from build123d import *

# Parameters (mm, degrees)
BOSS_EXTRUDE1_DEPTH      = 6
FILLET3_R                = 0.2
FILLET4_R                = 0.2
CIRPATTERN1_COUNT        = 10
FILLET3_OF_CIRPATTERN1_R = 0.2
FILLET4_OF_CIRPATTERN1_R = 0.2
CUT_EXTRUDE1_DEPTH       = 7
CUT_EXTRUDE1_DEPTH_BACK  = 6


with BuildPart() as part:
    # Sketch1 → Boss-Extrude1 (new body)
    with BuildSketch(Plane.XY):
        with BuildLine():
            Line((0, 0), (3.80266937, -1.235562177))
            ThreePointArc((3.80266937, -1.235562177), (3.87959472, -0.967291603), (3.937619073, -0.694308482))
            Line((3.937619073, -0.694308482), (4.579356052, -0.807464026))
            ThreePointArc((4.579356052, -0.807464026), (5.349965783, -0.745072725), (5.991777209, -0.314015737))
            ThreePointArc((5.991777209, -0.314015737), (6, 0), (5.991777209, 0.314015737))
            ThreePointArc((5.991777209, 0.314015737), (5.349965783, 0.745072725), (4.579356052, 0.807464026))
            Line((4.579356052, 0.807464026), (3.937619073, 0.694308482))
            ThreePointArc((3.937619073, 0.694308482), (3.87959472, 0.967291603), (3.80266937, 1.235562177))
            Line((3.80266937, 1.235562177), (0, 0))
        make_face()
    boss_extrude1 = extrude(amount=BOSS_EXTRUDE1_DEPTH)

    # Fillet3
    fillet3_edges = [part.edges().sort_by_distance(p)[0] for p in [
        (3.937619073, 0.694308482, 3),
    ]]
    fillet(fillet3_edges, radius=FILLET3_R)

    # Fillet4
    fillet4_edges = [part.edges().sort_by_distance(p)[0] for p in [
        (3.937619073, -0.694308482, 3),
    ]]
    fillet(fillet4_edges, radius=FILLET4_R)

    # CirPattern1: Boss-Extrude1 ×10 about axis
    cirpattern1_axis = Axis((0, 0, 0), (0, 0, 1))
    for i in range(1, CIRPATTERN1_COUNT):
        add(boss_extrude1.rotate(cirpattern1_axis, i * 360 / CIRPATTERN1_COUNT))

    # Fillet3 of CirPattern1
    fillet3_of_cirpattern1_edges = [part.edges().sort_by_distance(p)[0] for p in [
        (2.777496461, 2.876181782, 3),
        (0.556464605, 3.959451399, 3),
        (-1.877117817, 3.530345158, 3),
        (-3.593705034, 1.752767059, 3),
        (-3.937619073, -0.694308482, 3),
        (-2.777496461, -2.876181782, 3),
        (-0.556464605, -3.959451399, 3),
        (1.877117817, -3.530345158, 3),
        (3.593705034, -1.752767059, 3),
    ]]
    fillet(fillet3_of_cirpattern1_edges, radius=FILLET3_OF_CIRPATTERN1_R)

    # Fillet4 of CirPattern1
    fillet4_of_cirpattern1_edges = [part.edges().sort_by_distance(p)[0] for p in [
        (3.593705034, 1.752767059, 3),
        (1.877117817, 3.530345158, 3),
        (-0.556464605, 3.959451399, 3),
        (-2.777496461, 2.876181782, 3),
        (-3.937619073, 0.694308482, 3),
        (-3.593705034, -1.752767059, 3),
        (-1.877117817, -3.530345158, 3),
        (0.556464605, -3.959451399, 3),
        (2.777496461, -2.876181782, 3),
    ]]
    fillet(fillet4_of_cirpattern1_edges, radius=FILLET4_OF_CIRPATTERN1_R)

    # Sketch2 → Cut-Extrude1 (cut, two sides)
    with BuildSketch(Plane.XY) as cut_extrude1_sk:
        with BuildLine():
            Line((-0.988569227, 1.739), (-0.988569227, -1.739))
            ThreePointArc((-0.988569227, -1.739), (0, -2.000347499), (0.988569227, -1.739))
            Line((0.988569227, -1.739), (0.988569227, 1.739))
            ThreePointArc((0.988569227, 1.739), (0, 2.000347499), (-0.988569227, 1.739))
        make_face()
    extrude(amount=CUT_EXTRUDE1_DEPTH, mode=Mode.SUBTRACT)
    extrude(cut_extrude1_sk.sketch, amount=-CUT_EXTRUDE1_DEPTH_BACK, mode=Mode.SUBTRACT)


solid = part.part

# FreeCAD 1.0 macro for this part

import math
import FreeCAD as App
import Part
import Sketcher
Q = App.Units.Quantity


def edges_at(feature, points):
    """Names of the edges that pass closest to the given points."""
    edges = feature.Shape.Edges
    near = lambda p: min(range(len(edges)), key=lambda i: edges[i].distToShape(Part.Vertex(*p))[0])
    return sorted({f"Edge{near(p) + 1}" for p in points})

doc = App.newDocument("Part")
body = doc.addObject("PartDesign::Body", "Body")

# Sketch on XY plane
sketch1 = body.newObject("Sketcher::SketchObject", "Sketch")
sketch1.AttachmentSupport = (doc.getObject("XY_Plane"), [""])
sketch1.MapMode = "FlatFace"
sketch1.addGeometry([
    Part.LineSegment(App.Vector(0, 0, 0), App.Vector(3.802669, -1.235562, 0)),  # 0
    Part.ArcOfCircle(Part.Circle(App.Vector(0, 0, 0), App.Vector(0, 0, 1), 3.998363), math.radians(-18), math.radians(-10)),  # 1
    Part.LineSegment(App.Vector(3.937619, -0.694308, 0), App.Vector(4.579356, -0.807464, 0)),  # 2
    Part.ArcOfCircle(Part.Circle(App.Vector(4.845145, 0.6999, 0), App.Vector(0, 0, 1), 1.530618), math.radians(-100), math.radians(-41.484906)),  # 3
    Part.ArcOfCircle(Part.Circle(App.Vector(0, 0, 0), App.Vector(0, 0, 1), 6), math.radians(-3), math.radians(3)),  # 4
    Part.ArcOfCircle(Part.Circle(App.Vector(4.845145, -0.6999, 0), App.Vector(0, 0, 1), 1.530618), math.radians(41.484906), math.radians(100)),  # 5
    Part.LineSegment(App.Vector(4.579356, 0.807464, 0), App.Vector(3.937619, 0.694308, 0)),  # 6
    Part.ArcOfCircle(Part.Circle(App.Vector(0, 0, 0), App.Vector(0, 0, 1), 3.998363), math.radians(10), math.radians(18)),  # 7
    Part.LineSegment(App.Vector(3.802669, 1.235562, 0), App.Vector(0, 0, 0)),  # 8
], False)
sketch1.addConstraint([
    Sketcher.Constraint("Coincident", 0, 2, 1, 1),
    Sketcher.Constraint("Coincident", 1, 2, 2, 1),
    Sketcher.Constraint("Tangent", 2, 2, 3, 1),
    Sketcher.Constraint("Coincident", 3, 2, 4, 1),
    Sketcher.Constraint("Coincident", 4, 2, 5, 1),
    Sketcher.Constraint("Tangent", 5, 2, 6, 1),
    Sketcher.Constraint("Coincident", 6, 2, 7, 1),
    Sketcher.Constraint("Coincident", 7, 2, 8, 1),
    Sketcher.Constraint("Coincident", 8, 2, 0, 1),
    Sketcher.Constraint("Coincident", 1, 3, -1, 1),
    Sketcher.Constraint("Coincident", 4, 3, -1, 1),
    Sketcher.Constraint("Coincident", 7, 3, -1, 1),
    Sketcher.Constraint("Coincident", 8, 2, -1, 1),
    Sketcher.Constraint("Equal", 3, 5),
    Sketcher.Constraint("Equal", 1, 7),
    Sketcher.Constraint("Symmetric", 3, 3, 5, 3, -1),
    Sketcher.Constraint("Vertical", 2, 2, 5, 2),
    Sketcher.Constraint("Vertical", 0, 2, 7, 2),
    Sketcher.Constraint("Radius", 4, Q("6 mm")),
    Sketcher.Constraint("Angle", 0, Q("-18 deg")),
    Sketcher.Constraint("Angle", 2, Q("-10 deg")),
    Sketcher.Constraint("Radius", 1, Q("3.998363 mm")),
    Sketcher.Constraint("Radius", 3, Q("1.530618 mm")),
    Sketcher.Constraint("DistanceY", -1, 1, 3, 3, Q("0.6999 mm")),
    Sketcher.Constraint("DistanceX", -1, 1, 1, 2, Q("3.937619 mm")),
])
pad1 = body.newObject("PartDesign::Pad", "Pad")
pad1.Profile = sketch1
pad1.Length = 6
doc.recompute()

fillet = body.newObject("PartDesign::Fillet", "Fillet")
fillet.Base = (pad1, edges_at(pad1, [(3.938, 0.694, 3)]))
fillet.Radius = 0.2
doc.recompute()

fillet2 = body.newObject("PartDesign::Fillet", "Fillet001")
fillet2.Base = (fillet, edges_at(fillet, [(3.938, -0.694, 3)]))
fillet2.Radius = 0.2
doc.recompute()

polarpattern = body.newObject("PartDesign::PolarPattern", "PolarPattern")
polarpattern.Originals = [pad1]
polarpattern.Axis = (doc.getObject("Z_Axis"), [""])
polarpattern.Angle = 360
polarpattern.Occurrences = 10
body.Tip = polarpattern
doc.recompute()

fillet3 = body.newObject("PartDesign::Fillet", "Fillet002")
fillet3.Base = (polarpattern, edges_at(polarpattern, [
    (2.777, 2.876, 3),
    (0.556, 3.959, 3),
    (-1.877, 3.53, 3),
    (-3.594, 1.753, 3),
    (-3.938, -0.694, 3),
    (-2.777, -2.876, 3),
    (-0.556, -3.959, 3),
    (1.877, -3.53, 3),
    (3.594, -1.753, 3),
]))
fillet3.Radius = 0.2
doc.recompute()

fillet4 = body.newObject("PartDesign::Fillet", "Fillet003")
fillet4.Base = (fillet3, edges_at(fillet3, [
    (3.594, 1.753, 3),
    (1.877, 3.53, 3),
    (-0.556, 3.959, 3),
    (-2.777, 2.876, 3),
    (-3.938, 0.694, 3),
    (-3.594, -1.753, 3),
    (-1.877, -3.53, 3),
    (0.556, -3.959, 3),
    (2.777, -2.876, 3),
]))
fillet4.Radius = 0.2

# Sketch on XY plane
sketch2 = body.newObject("Sketcher::SketchObject", "Sketch001")
sketch2.AttachmentSupport = (doc.getObject("XY_Plane"), [""])
sketch2.MapMode = "FlatFace"
sketch2.addGeometry([
    Part.LineSegment(App.Vector(-0.988569, 1.739, 0), App.Vector(-0.988569, -1.739, 0)),
    Part.ArcOfCircle(Part.Circle(App.Vector(0, 0, 0), App.Vector(0, 0, 1), 2.000347), math.radians(-119.616929), math.radians(-60.383071)),
    Part.LineSegment(App.Vector(0.988569, -1.739, 0), App.Vector(0.988569, 1.739, 0)),
    Part.ArcOfCircle(Part.Circle(App.Vector(0, 0, 0), App.Vector(0, 0, 1), 2.000347), math.radians(60.383071), math.radians(119.616929)),
], False)
sketch2.addConstraint([
    Sketcher.Constraint("Coincident", 0, 2, 1, 1),
    Sketcher.Constraint("Coincident", 1, 2, 2, 1),
    Sketcher.Constraint("Coincident", 2, 2, 3, 1),
    Sketcher.Constraint("Coincident", 3, 2, 0, 1),
    Sketcher.Constraint("Vertical", 0),
    Sketcher.Constraint("Vertical", 2),
    Sketcher.Constraint("Coincident", 1, 3, -1, 1),
    Sketcher.Constraint("Coincident", 3, 3, -1, 1),
    Sketcher.Constraint("Equal", 1, 3),
    Sketcher.Constraint("Horizontal", 0, 2, 1, 2),
    Sketcher.Constraint("DistanceY", 0, 2, 0, 1, Q("3.478 mm")),
    Sketcher.Constraint("Radius", 1, Q("2.000347 mm")),
])
pocket1 = body.newObject("PartDesign::Pocket", "Pocket")
pocket1.Profile = sketch2
pocket1.Type = "ThroughAll"
pocket1.Midplane = True

doc.recompute()
